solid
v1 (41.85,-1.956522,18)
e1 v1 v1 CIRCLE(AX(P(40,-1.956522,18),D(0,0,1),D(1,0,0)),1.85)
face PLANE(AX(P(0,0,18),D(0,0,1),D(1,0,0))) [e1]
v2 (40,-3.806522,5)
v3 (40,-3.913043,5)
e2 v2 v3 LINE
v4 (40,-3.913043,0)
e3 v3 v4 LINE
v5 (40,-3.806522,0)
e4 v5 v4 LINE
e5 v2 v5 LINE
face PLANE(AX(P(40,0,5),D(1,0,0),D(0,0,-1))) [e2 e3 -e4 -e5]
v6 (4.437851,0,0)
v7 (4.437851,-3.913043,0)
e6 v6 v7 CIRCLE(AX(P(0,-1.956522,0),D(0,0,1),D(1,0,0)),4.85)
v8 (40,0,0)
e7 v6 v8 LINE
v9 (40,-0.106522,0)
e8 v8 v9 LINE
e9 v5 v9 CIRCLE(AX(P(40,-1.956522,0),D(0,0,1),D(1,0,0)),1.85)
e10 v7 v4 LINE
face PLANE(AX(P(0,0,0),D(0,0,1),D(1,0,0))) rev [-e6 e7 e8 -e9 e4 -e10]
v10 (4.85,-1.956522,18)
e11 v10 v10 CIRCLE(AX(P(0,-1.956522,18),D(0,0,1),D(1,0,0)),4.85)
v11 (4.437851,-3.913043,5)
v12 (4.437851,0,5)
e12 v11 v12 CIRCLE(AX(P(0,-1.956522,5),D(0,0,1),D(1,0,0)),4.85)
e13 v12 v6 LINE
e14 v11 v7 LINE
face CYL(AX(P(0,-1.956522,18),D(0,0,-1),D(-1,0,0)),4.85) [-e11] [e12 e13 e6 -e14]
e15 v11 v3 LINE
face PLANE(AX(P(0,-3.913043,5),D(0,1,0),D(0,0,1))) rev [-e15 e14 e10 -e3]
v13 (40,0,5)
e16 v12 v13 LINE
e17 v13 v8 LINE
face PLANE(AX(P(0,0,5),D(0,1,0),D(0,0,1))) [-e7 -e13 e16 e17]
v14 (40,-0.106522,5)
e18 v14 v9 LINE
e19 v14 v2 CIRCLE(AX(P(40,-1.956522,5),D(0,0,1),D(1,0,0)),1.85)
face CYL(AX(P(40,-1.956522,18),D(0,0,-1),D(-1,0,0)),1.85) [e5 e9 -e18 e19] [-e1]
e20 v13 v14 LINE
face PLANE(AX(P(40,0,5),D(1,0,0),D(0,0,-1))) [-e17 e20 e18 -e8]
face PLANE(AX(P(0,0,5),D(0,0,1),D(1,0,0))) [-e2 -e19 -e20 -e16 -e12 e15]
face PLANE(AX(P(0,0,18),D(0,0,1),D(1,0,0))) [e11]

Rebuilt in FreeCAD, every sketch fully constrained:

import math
import FreeCAD as App
import Part
import Sketcher

V = App.Vector

doc = App.newDocument("Part")
body = doc.addObject("PartDesign::Body", "Body")

# Sketch on XY plane
sketch1 = body.newObject("Sketcher::SketchObject", "Sketch")
sketch1.AttachmentSupport = (doc.getObject("XY_Plane"), [""])
sketch1.MapMode = "FlatFace"
sketch1.addGeometry([
    Part.LineSegment(V(40, 0, 0), V(4.44, 0, 0)),  # 0
    Part.ArcOfCircle(Part.Circle(V(0, -1.96, 0), V(0, 0, 1), 4.85), math.radians(0), math.radians(24)),  # 1
    Part.ArcOfCircle(Part.Circle(V(0, -1.96, 0), V(0, 0, 1), 4.85), math.radians(-24), math.radians(0)),  # 2
    Part.LineSegment(V(4.44, -3.91, 0), V(40, -3.91, 0)),  # 3
    Part.LineSegment(V(40, -3.91, 0), V(40, -3.81, 0)),  # 4
    Part.ArcOfCircle(Part.Circle(V(40, -1.96, 0), V(0, 0, 1), 1.85), math.radians(90), math.radians(270)),  # 5
    Part.LineSegment(V(40, -0.11, 0), V(40, 0, 0)),  # 6
], False)
sketch1.addConstraint([
    Sketcher.Constraint("Coincident", 0, 2, 1, 2),
    Sketcher.Constraint("Tangent", 1, 1, 2, 2),
    Sketcher.Constraint("Coincident", 2, 1, 3, 1),
    Sketcher.Constraint("Coincident", 3, 2, 4, 1),
    Sketcher.Constraint("Coincident", 4, 2, 5, 2),
    Sketcher.Constraint("Coincident", 5, 1, 6, 1),
    Sketcher.Constraint("Coincident", 6, 2, 0, 1),
    Sketcher.Constraint("Horizontal", 0),
    Sketcher.Constraint("Horizontal", 3),
    Sketcher.Constraint("Vertical", 4),
    Sketcher.Constraint("Vertical", 6),
    Sketcher.Constraint("Equal", 1, 2),
    Sketcher.Constraint("PointOnObject", 1, 3, -2),
    Sketcher.Constraint("PointOnObject", 0, 2, -1),
    Sketcher.Constraint("Horizontal", 2, 3, 5, 3),
    Sketcher.Constraint("Horizontal", 5, 3, 1, 1),
    Sketcher.Constraint("Vertical", 0, 2, 2, 1),
    Sketcher.Constraint("Vertical", 5, 3, 3, 2),
    Sketcher.Constraint("Vertical", 4, 2, 5, 1),
    Sketcher.Constraint("Radius", 1, 4.85),
    Sketcher.Constraint("Radius", 5, 1.85),
    Sketcher.Constraint("DistanceX", -1, 1, 5, 3, 40.0),
    Sketcher.Constraint("DistanceX", 0, 2, 0, 1, 35.562149),
])
pad1 = body.newObject("PartDesign::Pad", "Pad")
pad1.Profile = sketch1
pad1.Length = 5

# Sketch on XY plane
sketch2 = body.newObject("Sketcher::SketchObject", "Sketch001")
sketch2.AttachmentSupport = (doc.getObject("XY_Plane"), [""])
sketch2.MapMode = "FlatFace"
sketch2.addGeometry([
    Part.ArcOfCircle(Part.Circle(V(0, -2, 0), V(0, 0, 1), 4.8), math.radians(24), math.radians(336)),  # 0
    Part.ArcOfCircle(Part.Circle(V(0, -2, 0), V(0, 0, 1), 4.8), math.radians(-24), math.radians(0)),  # 1
    Part.ArcOfCircle(Part.Circle(V(0, -2, 0), V(0, 0, 1), 4.8), math.radians(0), math.radians(24)),  # 2
    Part.ArcOfCircle(Part.Circle(V(40, -2, 0), V(0, 0, 1), 1.9), math.radians(0), math.radians(90)),  # 3
    Part.ArcOfCircle(Part.Circle(V(40, -2, 0), V(0, 0, 1), 1.9), math.radians(90), math.radians(270)),  # 4
    Part.ArcOfCircle(Part.Circle(V(40, -2, 0), V(0, 0, 1), 1.9), math.radians(-90), math.radians(0)),  # 5
], False)
sketch2.addConstraint([
    Sketcher.Constraint("Tangent", 0, 2, 1, 1),
    Sketcher.Constraint("Tangent", 1, 2, 2, 1),
    Sketcher.Constraint("Tangent", 2, 2, 0, 1),
    Sketcher.Constraint("Tangent", 3, 2, 4, 1),
    Sketcher.Constraint("Tangent", 4, 2, 5, 1),
    Sketcher.Constraint("Tangent", 5, 2, 3, 1),
    Sketcher.Constraint("PointOnObject", 0, 3, -2),
    Sketcher.Constraint("PointOnObject", 2, 2, -1),
    Sketcher.Constraint("Horizontal", 2, 3, 3, 3),
    Sketcher.Constraint("Horizontal", 5, 3, 1, 2),
    Sketcher.Constraint("Horizontal", 1, 2, 5, 2),
    Sketcher.Constraint("Vertical", 0, 2, 2, 2),
    Sketcher.Constraint("Vertical", 5, 3, 3, 2),
    Sketcher.Constraint("Vertical", 3, 2, 4, 2),
    Sketcher.Constraint("Radius", 0, 4.85),
    Sketcher.Constraint("Radius", 3, 1.85),
    Sketcher.Constraint("DistanceX", -1, 1, 3, 3, 40.0),
    Sketcher.Constraint("DistanceY", 0, 3, -1, 1, 1.956522),
])
pad2 = body.newObject("PartDesign::Pad", "Pad001")
pad2.Profile = sketch2
pad2.Length = 18

doc.recompute()
